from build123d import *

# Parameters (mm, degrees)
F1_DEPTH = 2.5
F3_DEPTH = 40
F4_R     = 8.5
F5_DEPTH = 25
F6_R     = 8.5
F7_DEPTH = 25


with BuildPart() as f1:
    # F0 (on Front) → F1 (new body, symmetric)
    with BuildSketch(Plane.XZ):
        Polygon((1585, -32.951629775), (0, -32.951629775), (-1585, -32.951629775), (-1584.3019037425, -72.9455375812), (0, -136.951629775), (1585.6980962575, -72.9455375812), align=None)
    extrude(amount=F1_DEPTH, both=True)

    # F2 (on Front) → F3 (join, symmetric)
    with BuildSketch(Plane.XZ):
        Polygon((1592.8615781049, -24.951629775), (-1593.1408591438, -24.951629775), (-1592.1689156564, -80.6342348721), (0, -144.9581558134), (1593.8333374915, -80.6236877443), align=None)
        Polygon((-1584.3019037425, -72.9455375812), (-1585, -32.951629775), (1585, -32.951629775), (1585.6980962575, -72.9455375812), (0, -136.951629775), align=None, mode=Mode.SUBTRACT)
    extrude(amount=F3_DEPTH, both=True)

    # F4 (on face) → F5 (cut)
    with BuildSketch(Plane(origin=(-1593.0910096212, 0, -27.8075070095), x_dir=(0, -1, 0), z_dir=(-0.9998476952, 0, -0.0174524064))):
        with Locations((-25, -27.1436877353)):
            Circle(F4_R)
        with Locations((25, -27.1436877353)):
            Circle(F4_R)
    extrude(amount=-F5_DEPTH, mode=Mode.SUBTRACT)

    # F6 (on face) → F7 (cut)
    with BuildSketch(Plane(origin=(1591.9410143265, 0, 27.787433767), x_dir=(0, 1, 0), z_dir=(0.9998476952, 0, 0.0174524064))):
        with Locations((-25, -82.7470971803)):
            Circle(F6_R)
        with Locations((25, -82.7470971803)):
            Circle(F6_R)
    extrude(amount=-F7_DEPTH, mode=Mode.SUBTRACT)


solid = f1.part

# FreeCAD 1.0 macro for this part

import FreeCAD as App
import Part
import Sketcher
from FreeCAD import Vector
Q = App.Units.Quantity


def add_polygon(sketch, points):
    """Adds a closed chain of lines whose ends are joined by coincident constraints."""
    first, n = sketch.GeometryCount, len(points)
    for a, b in zip(points, points[1:] + points[:1]):
        sketch.addGeometry(Part.LineSegment(App.Vector(*a, 0), App.Vector(*b, 0)), False)
    for i in range(n):
        sketch.addConstraint(Sketcher.Constraint("Coincident", first + i, 2, first + (i + 1) % n, 1))

doc = App.newDocument("Part")
body = doc.addObject("PartDesign::Body", "Body")

# Sketch on XZ plane
sketch1 = body.newObject("Sketcher::SketchObject", "Sketch")
sketch1.AttachmentSupport = (doc.getObject("XZ_Plane"), [""])
sketch1.MapMode = "FlatFace"
add_polygon(sketch1, [(1585, -32.95163), (-1585, -32.95163), (-1584.301904, -72.945538), (0, -136.95163), (1585.698096, -72.945538)])  # lines 0-4
sketch1.addConstraint([
    Sketcher.Constraint("Horizontal", 0),
    Sketcher.Constraint("PointOnObject", 2, 2, -2),
    Sketcher.Constraint("Parallel", 1, 4),
    Sketcher.Constraint("Horizontal", 1, 2, 3, 2),
    Sketcher.Constraint("DistanceX", 0, 2, 0, 1, 3170.0),
    Sketcher.Constraint("Angle", 1, Q("-89 deg")),
    Sketcher.Constraint("Distance", 1, 40.0),
    Sketcher.Constraint("DistanceX", 0, 2, -1, 1, 1585.0),
    Sketcher.Constraint("DistanceY", 2, 2, 0, 2, 104.0),
    Sketcher.Constraint("DistanceY", 0, 2, -1, 1, 32.95163),
])
pad1 = body.newObject("PartDesign::Pad", "Pad")
pad1.Profile = sketch1
pad1.Length = 5
pad1.Midplane = True

# Sketch on XZ plane
sketch2 = body.newObject("Sketcher::SketchObject", "Sketch001")
sketch2.AttachmentSupport = (doc.getObject("XZ_Plane"), [""])
sketch2.MapMode = "FlatFace"
add_polygon(sketch2, [(1592.861578, -24.95163), (-1593.140859, -24.95163), (-1592.168916, -80.634235), (0, -144.958156), (1593.833337, -80.623688)])  # lines 0-4
add_polygon(sketch2, [(0, -136.95163), (-1584.301904, -72.945538), (-1585, -32.95163), (1585, -32.95163), (1585.698096, -72.945538)])  # lines 5-9
sketch2.addConstraint([
    Sketcher.Constraint("Horizontal", 0),
    Sketcher.Constraint("Horizontal", 7),
    Sketcher.Constraint("PointOnObject", 2, 2, -2),
    Sketcher.Constraint("PointOnObject", 9, 2, -2),
    Sketcher.Constraint("Parallel", 1, 4),
    Sketcher.Constraint("Parallel", 2, 5),
    Sketcher.Constraint("Parallel", 4, 6),
    Sketcher.Constraint("Parallel", 6, 8),
    Sketcher.Constraint("Parallel", 3, 9),
    Sketcher.Constraint("Horizontal", 5, 2, 8, 2),
    Sketcher.Constraint("DistanceX", 7, 1, 7, 2, 3170.0),
    Sketcher.Constraint("Angle", 1, Q("-89 deg")),
    Sketcher.Constraint("Distance", 6, 40.0),
    Sketcher.Constraint("DistanceX", 6, 2, -1, 1, 1585.0),
    Sketcher.Constraint("DistanceY", 6, 2, 0, 2, 8.0),
    Sketcher.Constraint("DistanceY", 9, 2, 6, 2, 104.0),
    Sketcher.Constraint("Distance", 4, 55.680538),
    Sketcher.Constraint("DistanceX", 0, 2, 0, 1, 3186.002437),
    Sketcher.Constraint("DistanceX", 0, 2, -1, 1, 1593.140859),
    Sketcher.Constraint("DistanceY", 0, 2, -1, 1, 24.95163),
])
pad2 = body.newObject("PartDesign::Pad", "Pad001")
pad2.Profile = sketch2
pad2.Length = 80
pad2.Midplane = True

# Sketch on an angled plane
sketch3 = body.newObject("Sketcher::SketchObject", "Sketch002")
sketch3.Placement = App.Placement(Vector(-1593.09101, 0, -27.807507), App.Rotation(Vector(0, -1, 0), Vector(-0.017452406, 0, 0.999847695), Vector(-0.999847695, 0, -0.017452406), "ZXY"))
sketch3.addGeometry([
    Part.Circle(Vector(-25, -27.143688, 0), Vector(0, 0, 1), 8.5),
    Part.Circle(Vector(25, -27.143688, 0), Vector(0, 0, 1), 8.5),
], False)
sketch3.addConstraint([
    Sketcher.Constraint("Equal", 0, 1),
    Sketcher.Constraint("Symmetric", 0, 3, 1, 3, -2),
    Sketcher.Constraint("Diameter", 0, 17.0),
    Sketcher.Constraint("DistanceX", 0, 3, -1, 1, 25.0),
    Sketcher.Constraint("DistanceY", 0, 3, -1, 1, 27.143688),
])
pocket1 = body.newObject("PartDesign::Pocket", "Pocket")
pocket1.Profile = sketch3
pocket1.Length = 25

# Sketch on an angled plane
sketch4 = body.newObject("Sketcher::SketchObject", "Sketch003")
sketch4.Placement = App.Placement(Vector(1591.941014, 0, 27.787434), App.Rotation(Vector(0, 1, 0), Vector(-0.017452406, 0, 0.999847695), Vector(0.999847695, 0, 0.017452406), "ZXY"))
sketch4.addGeometry([
    Part.Circle(Vector(-25, -82.747097, 0), Vector(0, 0, 1), 8.5),
    Part.Circle(Vector(25, -82.747097, 0), Vector(0, 0, 1), 8.5),
], False)
sketch4.addConstraint([
    Sketcher.Constraint("Equal", 0, 1),
    Sketcher.Constraint("Symmetric", 0, 3, 1, 3, -2),
    Sketcher.Constraint("Diameter", 0, 17.0),
    Sketcher.Constraint("DistanceX", 0, 3, -1, 1, 25.0),
    Sketcher.Constraint("DistanceY", 0, 3, -1, 1, 82.747097),
])
pocket2 = body.newObject("PartDesign::Pocket", "Pocket001")
pocket2.Profile = sketch4
pocket2.Length = 25

doc.recompute()
